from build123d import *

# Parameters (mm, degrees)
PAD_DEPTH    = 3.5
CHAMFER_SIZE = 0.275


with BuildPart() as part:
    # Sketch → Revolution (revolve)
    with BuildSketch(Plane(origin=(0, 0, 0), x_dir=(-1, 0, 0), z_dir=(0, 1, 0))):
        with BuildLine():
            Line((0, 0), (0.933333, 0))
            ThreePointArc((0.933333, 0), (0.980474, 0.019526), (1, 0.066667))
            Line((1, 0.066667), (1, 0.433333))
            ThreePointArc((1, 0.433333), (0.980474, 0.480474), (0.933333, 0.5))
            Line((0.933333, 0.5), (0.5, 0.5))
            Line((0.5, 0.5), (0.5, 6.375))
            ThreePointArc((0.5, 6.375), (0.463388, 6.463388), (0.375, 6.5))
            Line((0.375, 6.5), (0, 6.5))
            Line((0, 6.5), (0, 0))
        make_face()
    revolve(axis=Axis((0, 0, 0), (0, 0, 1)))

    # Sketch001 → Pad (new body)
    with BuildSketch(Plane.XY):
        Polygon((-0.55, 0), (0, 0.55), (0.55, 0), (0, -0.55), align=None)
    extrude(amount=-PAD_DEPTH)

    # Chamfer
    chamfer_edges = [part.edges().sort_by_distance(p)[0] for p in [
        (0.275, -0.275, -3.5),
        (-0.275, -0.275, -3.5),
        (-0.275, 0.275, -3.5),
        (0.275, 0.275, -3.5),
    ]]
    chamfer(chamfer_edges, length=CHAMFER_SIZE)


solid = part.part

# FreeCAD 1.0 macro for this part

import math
import FreeCAD as App
import Part
import Sketcher
from FreeCAD import Vector
Q = App.Units.Quantity


def edges_at(feature, points):
    """Names of the edges that pass closest to the given points."""
    edges = feature.Shape.Edges
    near = lambda p: min(range(len(edges)), key=lambda i: edges[i].distToShape(Part.Vertex(*p))[0])
    return sorted({f"Edge{near(p) + 1}" for p in points})

doc = App.newDocument("Part")
params = doc.addObject("Spreadsheet::Sheet", "Params")
for row, (alias, value) in enumerate([
    ("sketch1_height", "6.5 mm"),
    ("revolution_angle", "360 deg"),
    ("pad1_length", "3.5 mm"),
    ("chamfer_size", "0.275 mm"),
], start=1):
    params.set(f"A{row}", alias)
    params.set(f"B{row}", "=" + value)
    params.setAlias(f"B{row}", alias)

body = doc.addObject("PartDesign::Body", "Body")

# Sketch on XZ plane
sketch1 = doc.addObject("Sketcher::SketchObject", "Sketch")
body.addObject(sketch1)
sketch1.AttachmentSupport = (doc.XZ_Plane, [""])
sketch1.MapMode = "FlatFace"
sketch1.addGeometry(Part.LineSegment(Vector(0, 0, 0), Vector(-0.933333, 0, 0)), False)
sketch1.addGeometry(Part.ArcOfCircle(Part.Circle(Vector(-0.933334, 0.066666, 0), Vector(0, 0, 1), 0.066666), math.radians(179.999084), math.radians(270.000916)), False)
sketch1.addGeometry(Part.LineSegment(Vector(-1, 0.066667, 0), Vector(-1, 0.433333, 0)), False)
sketch1.addGeometry(Part.ArcOfCircle(Part.Circle(Vector(-0.933334, 0.433334, 0), Vector(0, 0, 1), 0.066666), math.radians(89.999084), math.radians(180.000916)), False)
sketch1.addGeometry(Part.LineSegment(Vector(-0.933333, 0.5, 0), Vector(-0.5, 0.5, 0)), False)
sketch1.addGeometry(Part.LineSegment(Vector(-0.5, 0.5, 0), Vector(-0.5, 6.375, 0)), False)
sketch1.addGeometry(Part.ArcOfCircle(Part.Circle(Vector(-0.374999, 6.374999, 0), Vector(0, 0, 1), 0.125001), math.radians(90.000544), math.radians(179.999456)), False)
sketch1.addGeometry(Part.LineSegment(Vector(-0.375, 6.5, 0), Vector(0, 6.5, 0)), False)
sketch1.addGeometry(Part.LineSegment(Vector(0, 6.5, 0), Vector(0, 0, 0)), False)
sketch1.addConstraint(Sketcher.Constraint("Coincident", 0, 2, 1, 2))
sketch1.addConstraint(Sketcher.Constraint("Coincident", 1, 1, 2, 1))
sketch1.addConstraint(Sketcher.Constraint("Coincident", 2, 2, 3, 2))
sketch1.addConstraint(Sketcher.Constraint("Coincident", 3, 1, 4, 1))
sketch1.addConstraint(Sketcher.Constraint("Coincident", 4, 2, 5, 1))
sketch1.addConstraint(Sketcher.Constraint("Coincident", 5, 2, 6, 2))
sketch1.addConstraint(Sketcher.Constraint("Coincident", 6, 1, 7, 1))
sketch1.addConstraint(Sketcher.Constraint("Coincident", 7, 2, 8, 1))
sketch1.addConstraint(Sketcher.Constraint("Coincident", 8, 2, 0, 1))
sketch1.addConstraint(Sketcher.Constraint("Horizontal", 0))
sketch1.addConstraint(Sketcher.Constraint("Vertical", 2))
sketch1.addConstraint(Sketcher.Constraint("Horizontal", 4))
sketch1.addConstraint(Sketcher.Constraint("Vertical", 5))
sketch1.addConstraint(Sketcher.Constraint("Horizontal", 7))
sketch1.addConstraint(Sketcher.Constraint("Vertical", 8))
sketch1.addConstraint(Sketcher.Constraint("Coincident", 8, 2, -1, 1))
sketch1.addConstraint(Sketcher.Constraint("Equal", 1, 3))
sketch1.addConstraint(Sketcher.Constraint("Horizontal", 3, 3, 2, 2))
sketch1.addConstraint(Sketcher.Constraint("Horizontal", 6, 3, 5, 2))
sketch1.addConstraint(Sketcher.Constraint("Vertical", 3, 3, 0, 2))
sketch1.addConstraint(Sketcher.Constraint("Vertical", 0, 2, 3, 1))
sketch1.addConstraint(Sketcher.Constraint("DistanceY", 8, 2, 8, 1, Q("6.5 mm")))
sketch1.addConstraint(Sketcher.Constraint("DistanceX", 1, 1, -1, 1, Q("1 mm")))
sketch1.addConstraint(Sketcher.Constraint("Radius", 6, Q("0.125001 mm")))
sketch1.addConstraint(Sketcher.Constraint("DistanceY", 4, 2, 6, 1, Q("6 mm")))
sketch1.addConstraint(Sketcher.Constraint("DistanceX", 4, 2, -1, 1, Q("0.5 mm")))
sketch1.addConstraint(Sketcher.Constraint("DistanceX", 7, 1, 7, 2, Q("0.375 mm")))
sketch1.addConstraint(Sketcher.Constraint("Radius", 1, Q("0.066666 mm")))
sketch1.addConstraint(Sketcher.Constraint("DistanceY", 2, 1, 2, 2, Q("0.366666 mm")))
sketch1.setExpression("Constraints[21]", "Params.sketch1_height")
revolution = doc.addObject("PartDesign::Revolution", "Revolution")
body.addObject(revolution)
revolution.Profile = sketch1
revolution.ReferenceAxis = (sketch1, ["V_Axis"])
revolution.setExpression("Angle", "Params.revolution_angle")

# Sketch on XY plane
sketch2 = doc.addObject("Sketcher::SketchObject", "Sketch001")
body.addObject(sketch2)
sketch2.AttachmentSupport = (doc.XY_Plane, [""])
sketch2.MapMode = "FlatFace"
sketch2.addGeometry(Part.LineSegment(Vector(0, 0.55, 0), Vector(-0.55, 0, 0)), False)
sketch2.addGeometry(Part.LineSegment(Vector(-0.55, 0, 0), Vector(0, -0.55, 0)), False)
sketch2.addGeometry(Part.LineSegment(Vector(0, -0.55, 0), Vector(0.55, 0, 0)), False)
sketch2.addGeometry(Part.LineSegment(Vector(0.55, 0, 0), Vector(0, 0.55, 0)), False)
sketch2.addConstraint(Sketcher.Constraint("Coincident", 0, 2, 1, 1))
sketch2.addConstraint(Sketcher.Constraint("Coincident", 1, 2, 2, 1))
sketch2.addConstraint(Sketcher.Constraint("Coincident", 2, 2, 3, 1))
sketch2.addConstraint(Sketcher.Constraint("Coincident", 3, 2, 0, 1))
sketch2.addConstraint(Sketcher.Constraint("Symmetric", 0, 2, 2, 2, -1, 1))
sketch2.addConstraint(Sketcher.Constraint("Symmetric", 1, 2, 3, 2, -1, 1))
sketch2.addConstraint(Sketcher.Constraint("PointOnObject", 0, 2, -1))
sketch2.addConstraint(Sketcher.Constraint("PointOnObject", 1, 2, -2))
sketch2.addConstraint(Sketcher.Constraint("Perpendicular", 0, 1))
sketch2.addConstraint(Sketcher.Constraint("DistanceX", 0, 2, 2, 2, Q("1.1 mm")))
pad1 = doc.addObject("PartDesign::Pad", "Pad")
body.addObject(pad1)
pad1.Profile = sketch2
pad1.setExpression("Length", "Params.pad1_length")
pad1.Reversed = True
doc.recompute()

chamfer = doc.addObject("PartDesign::Chamfer", "Chamfer")
body.addObject(chamfer)
chamfer.Base = (pad1, edges_at(pad1, [
    (0.275, -0.275, -3.5),
    (-0.275, -0.275, -3.5),
    (-0.275, 0.275, -3.5),
    (0.275, 0.275, -3.5),
]))
chamfer.setExpression("Size", "Params.chamfer_size")

doc.recompute()
